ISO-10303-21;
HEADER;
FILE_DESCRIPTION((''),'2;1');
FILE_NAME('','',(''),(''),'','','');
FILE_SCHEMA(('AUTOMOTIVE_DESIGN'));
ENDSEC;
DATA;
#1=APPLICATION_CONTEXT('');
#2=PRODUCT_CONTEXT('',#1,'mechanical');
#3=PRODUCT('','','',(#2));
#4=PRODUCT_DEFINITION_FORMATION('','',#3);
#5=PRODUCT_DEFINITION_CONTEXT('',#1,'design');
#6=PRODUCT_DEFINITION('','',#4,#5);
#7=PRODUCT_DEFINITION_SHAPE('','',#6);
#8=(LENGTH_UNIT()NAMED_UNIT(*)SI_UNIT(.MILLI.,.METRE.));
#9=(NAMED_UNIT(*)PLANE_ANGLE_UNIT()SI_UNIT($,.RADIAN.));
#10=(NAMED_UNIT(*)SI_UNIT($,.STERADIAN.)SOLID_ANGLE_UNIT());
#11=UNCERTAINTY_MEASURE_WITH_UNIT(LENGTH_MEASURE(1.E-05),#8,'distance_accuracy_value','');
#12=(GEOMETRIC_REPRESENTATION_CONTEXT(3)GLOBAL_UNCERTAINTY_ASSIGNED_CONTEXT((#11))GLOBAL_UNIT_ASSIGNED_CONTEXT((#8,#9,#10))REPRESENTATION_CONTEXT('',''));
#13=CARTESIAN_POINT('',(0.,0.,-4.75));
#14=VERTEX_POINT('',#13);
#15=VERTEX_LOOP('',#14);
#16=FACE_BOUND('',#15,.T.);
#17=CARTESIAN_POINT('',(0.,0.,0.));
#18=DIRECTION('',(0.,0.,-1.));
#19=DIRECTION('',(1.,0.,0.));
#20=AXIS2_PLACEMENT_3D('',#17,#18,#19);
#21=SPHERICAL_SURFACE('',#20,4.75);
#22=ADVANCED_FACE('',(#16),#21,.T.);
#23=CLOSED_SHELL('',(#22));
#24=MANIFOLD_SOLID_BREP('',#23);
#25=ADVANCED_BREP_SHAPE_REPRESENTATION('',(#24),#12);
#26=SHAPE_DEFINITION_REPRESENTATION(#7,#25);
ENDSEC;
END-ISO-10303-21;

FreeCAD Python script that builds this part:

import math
import FreeCAD as App
import Part
import Sketcher
from FreeCAD import Vector
Q = App.Units.Quantity

doc = App.newDocument("Part")
body = doc.addObject("PartDesign::Body", "Body")

# Sketch on XZ plane
sketch1 = body.newObject("Sketcher::SketchObject", "Sketch")
sketch1.AttachmentSupport = (doc.getObject("XZ_Plane"), [""])
sketch1.MapMode = "FlatFace"
sketch1.addGeometry([
    Part.LineSegment(Vector(0, -4.8, 0), Vector(0, 4.8, 0)),
    Part.ArcOfCircle(Part.Circle(Vector(0, 0, 0), Vector(0, 0, 1), 4.8), math.radians(-90), math.radians(90)),
], False)
sketch1.addConstraint([
    Sketcher.Constraint("Coincident", 0, 1, 1, 1),
    Sketcher.Constraint("Coincident", 1, 2, 0, 2),
    Sketcher.Constraint("Vertical", 0),
    Sketcher.Constraint("Coincident", 1, 3, -1, 1),
    Sketcher.Constraint("PointOnObject", 0, 1, -2),
    Sketcher.Constraint("Radius", 1, Q("4.75 mm")),
])
revolution = body.newObject("PartDesign::Revolution", "Revolution")
revolution.Profile = sketch1
revolution.ReferenceAxis = (sketch1, ["V_Axis"])
revolution.Angle = 360

doc.recompute()
